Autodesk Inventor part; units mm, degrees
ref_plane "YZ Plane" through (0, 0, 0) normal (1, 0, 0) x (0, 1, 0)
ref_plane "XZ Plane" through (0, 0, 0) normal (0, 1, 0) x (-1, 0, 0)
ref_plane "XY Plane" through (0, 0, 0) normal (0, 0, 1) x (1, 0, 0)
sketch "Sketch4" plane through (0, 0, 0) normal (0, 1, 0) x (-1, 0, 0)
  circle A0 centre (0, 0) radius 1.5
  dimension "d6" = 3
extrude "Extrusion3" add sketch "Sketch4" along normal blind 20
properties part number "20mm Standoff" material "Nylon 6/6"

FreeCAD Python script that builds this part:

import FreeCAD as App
import Part
import Sketcher
from FreeCAD import Vector

doc = App.newDocument("Part")
body = doc.addObject("PartDesign::Body", "Body")

# Sketch on XZ plane
sketch1 = doc.addObject("Sketcher::SketchObject", "Sketch")
body.addObject(sketch1)
sketch1.AttachmentSupport = (doc.XZ_Plane, [""])
sketch1.MapMode = "FlatFace"
sketch1.addGeometry(Part.Circle(Vector(0, 0, 0), Vector(0, 0, 1), 1.5), False)
sketch1.addConstraint(Sketcher.Constraint("Coincident", 0, 3, -1, 1))
sketch1.addConstraint(Sketcher.Constraint("Diameter", 0, 3.0))
pad1 = doc.addObject("PartDesign::Pad", "Pad")
body.addObject(pad1)
pad1.Profile = sketch1
pad1.Length = 20
pad1.Reversed = True

doc.recompute()
